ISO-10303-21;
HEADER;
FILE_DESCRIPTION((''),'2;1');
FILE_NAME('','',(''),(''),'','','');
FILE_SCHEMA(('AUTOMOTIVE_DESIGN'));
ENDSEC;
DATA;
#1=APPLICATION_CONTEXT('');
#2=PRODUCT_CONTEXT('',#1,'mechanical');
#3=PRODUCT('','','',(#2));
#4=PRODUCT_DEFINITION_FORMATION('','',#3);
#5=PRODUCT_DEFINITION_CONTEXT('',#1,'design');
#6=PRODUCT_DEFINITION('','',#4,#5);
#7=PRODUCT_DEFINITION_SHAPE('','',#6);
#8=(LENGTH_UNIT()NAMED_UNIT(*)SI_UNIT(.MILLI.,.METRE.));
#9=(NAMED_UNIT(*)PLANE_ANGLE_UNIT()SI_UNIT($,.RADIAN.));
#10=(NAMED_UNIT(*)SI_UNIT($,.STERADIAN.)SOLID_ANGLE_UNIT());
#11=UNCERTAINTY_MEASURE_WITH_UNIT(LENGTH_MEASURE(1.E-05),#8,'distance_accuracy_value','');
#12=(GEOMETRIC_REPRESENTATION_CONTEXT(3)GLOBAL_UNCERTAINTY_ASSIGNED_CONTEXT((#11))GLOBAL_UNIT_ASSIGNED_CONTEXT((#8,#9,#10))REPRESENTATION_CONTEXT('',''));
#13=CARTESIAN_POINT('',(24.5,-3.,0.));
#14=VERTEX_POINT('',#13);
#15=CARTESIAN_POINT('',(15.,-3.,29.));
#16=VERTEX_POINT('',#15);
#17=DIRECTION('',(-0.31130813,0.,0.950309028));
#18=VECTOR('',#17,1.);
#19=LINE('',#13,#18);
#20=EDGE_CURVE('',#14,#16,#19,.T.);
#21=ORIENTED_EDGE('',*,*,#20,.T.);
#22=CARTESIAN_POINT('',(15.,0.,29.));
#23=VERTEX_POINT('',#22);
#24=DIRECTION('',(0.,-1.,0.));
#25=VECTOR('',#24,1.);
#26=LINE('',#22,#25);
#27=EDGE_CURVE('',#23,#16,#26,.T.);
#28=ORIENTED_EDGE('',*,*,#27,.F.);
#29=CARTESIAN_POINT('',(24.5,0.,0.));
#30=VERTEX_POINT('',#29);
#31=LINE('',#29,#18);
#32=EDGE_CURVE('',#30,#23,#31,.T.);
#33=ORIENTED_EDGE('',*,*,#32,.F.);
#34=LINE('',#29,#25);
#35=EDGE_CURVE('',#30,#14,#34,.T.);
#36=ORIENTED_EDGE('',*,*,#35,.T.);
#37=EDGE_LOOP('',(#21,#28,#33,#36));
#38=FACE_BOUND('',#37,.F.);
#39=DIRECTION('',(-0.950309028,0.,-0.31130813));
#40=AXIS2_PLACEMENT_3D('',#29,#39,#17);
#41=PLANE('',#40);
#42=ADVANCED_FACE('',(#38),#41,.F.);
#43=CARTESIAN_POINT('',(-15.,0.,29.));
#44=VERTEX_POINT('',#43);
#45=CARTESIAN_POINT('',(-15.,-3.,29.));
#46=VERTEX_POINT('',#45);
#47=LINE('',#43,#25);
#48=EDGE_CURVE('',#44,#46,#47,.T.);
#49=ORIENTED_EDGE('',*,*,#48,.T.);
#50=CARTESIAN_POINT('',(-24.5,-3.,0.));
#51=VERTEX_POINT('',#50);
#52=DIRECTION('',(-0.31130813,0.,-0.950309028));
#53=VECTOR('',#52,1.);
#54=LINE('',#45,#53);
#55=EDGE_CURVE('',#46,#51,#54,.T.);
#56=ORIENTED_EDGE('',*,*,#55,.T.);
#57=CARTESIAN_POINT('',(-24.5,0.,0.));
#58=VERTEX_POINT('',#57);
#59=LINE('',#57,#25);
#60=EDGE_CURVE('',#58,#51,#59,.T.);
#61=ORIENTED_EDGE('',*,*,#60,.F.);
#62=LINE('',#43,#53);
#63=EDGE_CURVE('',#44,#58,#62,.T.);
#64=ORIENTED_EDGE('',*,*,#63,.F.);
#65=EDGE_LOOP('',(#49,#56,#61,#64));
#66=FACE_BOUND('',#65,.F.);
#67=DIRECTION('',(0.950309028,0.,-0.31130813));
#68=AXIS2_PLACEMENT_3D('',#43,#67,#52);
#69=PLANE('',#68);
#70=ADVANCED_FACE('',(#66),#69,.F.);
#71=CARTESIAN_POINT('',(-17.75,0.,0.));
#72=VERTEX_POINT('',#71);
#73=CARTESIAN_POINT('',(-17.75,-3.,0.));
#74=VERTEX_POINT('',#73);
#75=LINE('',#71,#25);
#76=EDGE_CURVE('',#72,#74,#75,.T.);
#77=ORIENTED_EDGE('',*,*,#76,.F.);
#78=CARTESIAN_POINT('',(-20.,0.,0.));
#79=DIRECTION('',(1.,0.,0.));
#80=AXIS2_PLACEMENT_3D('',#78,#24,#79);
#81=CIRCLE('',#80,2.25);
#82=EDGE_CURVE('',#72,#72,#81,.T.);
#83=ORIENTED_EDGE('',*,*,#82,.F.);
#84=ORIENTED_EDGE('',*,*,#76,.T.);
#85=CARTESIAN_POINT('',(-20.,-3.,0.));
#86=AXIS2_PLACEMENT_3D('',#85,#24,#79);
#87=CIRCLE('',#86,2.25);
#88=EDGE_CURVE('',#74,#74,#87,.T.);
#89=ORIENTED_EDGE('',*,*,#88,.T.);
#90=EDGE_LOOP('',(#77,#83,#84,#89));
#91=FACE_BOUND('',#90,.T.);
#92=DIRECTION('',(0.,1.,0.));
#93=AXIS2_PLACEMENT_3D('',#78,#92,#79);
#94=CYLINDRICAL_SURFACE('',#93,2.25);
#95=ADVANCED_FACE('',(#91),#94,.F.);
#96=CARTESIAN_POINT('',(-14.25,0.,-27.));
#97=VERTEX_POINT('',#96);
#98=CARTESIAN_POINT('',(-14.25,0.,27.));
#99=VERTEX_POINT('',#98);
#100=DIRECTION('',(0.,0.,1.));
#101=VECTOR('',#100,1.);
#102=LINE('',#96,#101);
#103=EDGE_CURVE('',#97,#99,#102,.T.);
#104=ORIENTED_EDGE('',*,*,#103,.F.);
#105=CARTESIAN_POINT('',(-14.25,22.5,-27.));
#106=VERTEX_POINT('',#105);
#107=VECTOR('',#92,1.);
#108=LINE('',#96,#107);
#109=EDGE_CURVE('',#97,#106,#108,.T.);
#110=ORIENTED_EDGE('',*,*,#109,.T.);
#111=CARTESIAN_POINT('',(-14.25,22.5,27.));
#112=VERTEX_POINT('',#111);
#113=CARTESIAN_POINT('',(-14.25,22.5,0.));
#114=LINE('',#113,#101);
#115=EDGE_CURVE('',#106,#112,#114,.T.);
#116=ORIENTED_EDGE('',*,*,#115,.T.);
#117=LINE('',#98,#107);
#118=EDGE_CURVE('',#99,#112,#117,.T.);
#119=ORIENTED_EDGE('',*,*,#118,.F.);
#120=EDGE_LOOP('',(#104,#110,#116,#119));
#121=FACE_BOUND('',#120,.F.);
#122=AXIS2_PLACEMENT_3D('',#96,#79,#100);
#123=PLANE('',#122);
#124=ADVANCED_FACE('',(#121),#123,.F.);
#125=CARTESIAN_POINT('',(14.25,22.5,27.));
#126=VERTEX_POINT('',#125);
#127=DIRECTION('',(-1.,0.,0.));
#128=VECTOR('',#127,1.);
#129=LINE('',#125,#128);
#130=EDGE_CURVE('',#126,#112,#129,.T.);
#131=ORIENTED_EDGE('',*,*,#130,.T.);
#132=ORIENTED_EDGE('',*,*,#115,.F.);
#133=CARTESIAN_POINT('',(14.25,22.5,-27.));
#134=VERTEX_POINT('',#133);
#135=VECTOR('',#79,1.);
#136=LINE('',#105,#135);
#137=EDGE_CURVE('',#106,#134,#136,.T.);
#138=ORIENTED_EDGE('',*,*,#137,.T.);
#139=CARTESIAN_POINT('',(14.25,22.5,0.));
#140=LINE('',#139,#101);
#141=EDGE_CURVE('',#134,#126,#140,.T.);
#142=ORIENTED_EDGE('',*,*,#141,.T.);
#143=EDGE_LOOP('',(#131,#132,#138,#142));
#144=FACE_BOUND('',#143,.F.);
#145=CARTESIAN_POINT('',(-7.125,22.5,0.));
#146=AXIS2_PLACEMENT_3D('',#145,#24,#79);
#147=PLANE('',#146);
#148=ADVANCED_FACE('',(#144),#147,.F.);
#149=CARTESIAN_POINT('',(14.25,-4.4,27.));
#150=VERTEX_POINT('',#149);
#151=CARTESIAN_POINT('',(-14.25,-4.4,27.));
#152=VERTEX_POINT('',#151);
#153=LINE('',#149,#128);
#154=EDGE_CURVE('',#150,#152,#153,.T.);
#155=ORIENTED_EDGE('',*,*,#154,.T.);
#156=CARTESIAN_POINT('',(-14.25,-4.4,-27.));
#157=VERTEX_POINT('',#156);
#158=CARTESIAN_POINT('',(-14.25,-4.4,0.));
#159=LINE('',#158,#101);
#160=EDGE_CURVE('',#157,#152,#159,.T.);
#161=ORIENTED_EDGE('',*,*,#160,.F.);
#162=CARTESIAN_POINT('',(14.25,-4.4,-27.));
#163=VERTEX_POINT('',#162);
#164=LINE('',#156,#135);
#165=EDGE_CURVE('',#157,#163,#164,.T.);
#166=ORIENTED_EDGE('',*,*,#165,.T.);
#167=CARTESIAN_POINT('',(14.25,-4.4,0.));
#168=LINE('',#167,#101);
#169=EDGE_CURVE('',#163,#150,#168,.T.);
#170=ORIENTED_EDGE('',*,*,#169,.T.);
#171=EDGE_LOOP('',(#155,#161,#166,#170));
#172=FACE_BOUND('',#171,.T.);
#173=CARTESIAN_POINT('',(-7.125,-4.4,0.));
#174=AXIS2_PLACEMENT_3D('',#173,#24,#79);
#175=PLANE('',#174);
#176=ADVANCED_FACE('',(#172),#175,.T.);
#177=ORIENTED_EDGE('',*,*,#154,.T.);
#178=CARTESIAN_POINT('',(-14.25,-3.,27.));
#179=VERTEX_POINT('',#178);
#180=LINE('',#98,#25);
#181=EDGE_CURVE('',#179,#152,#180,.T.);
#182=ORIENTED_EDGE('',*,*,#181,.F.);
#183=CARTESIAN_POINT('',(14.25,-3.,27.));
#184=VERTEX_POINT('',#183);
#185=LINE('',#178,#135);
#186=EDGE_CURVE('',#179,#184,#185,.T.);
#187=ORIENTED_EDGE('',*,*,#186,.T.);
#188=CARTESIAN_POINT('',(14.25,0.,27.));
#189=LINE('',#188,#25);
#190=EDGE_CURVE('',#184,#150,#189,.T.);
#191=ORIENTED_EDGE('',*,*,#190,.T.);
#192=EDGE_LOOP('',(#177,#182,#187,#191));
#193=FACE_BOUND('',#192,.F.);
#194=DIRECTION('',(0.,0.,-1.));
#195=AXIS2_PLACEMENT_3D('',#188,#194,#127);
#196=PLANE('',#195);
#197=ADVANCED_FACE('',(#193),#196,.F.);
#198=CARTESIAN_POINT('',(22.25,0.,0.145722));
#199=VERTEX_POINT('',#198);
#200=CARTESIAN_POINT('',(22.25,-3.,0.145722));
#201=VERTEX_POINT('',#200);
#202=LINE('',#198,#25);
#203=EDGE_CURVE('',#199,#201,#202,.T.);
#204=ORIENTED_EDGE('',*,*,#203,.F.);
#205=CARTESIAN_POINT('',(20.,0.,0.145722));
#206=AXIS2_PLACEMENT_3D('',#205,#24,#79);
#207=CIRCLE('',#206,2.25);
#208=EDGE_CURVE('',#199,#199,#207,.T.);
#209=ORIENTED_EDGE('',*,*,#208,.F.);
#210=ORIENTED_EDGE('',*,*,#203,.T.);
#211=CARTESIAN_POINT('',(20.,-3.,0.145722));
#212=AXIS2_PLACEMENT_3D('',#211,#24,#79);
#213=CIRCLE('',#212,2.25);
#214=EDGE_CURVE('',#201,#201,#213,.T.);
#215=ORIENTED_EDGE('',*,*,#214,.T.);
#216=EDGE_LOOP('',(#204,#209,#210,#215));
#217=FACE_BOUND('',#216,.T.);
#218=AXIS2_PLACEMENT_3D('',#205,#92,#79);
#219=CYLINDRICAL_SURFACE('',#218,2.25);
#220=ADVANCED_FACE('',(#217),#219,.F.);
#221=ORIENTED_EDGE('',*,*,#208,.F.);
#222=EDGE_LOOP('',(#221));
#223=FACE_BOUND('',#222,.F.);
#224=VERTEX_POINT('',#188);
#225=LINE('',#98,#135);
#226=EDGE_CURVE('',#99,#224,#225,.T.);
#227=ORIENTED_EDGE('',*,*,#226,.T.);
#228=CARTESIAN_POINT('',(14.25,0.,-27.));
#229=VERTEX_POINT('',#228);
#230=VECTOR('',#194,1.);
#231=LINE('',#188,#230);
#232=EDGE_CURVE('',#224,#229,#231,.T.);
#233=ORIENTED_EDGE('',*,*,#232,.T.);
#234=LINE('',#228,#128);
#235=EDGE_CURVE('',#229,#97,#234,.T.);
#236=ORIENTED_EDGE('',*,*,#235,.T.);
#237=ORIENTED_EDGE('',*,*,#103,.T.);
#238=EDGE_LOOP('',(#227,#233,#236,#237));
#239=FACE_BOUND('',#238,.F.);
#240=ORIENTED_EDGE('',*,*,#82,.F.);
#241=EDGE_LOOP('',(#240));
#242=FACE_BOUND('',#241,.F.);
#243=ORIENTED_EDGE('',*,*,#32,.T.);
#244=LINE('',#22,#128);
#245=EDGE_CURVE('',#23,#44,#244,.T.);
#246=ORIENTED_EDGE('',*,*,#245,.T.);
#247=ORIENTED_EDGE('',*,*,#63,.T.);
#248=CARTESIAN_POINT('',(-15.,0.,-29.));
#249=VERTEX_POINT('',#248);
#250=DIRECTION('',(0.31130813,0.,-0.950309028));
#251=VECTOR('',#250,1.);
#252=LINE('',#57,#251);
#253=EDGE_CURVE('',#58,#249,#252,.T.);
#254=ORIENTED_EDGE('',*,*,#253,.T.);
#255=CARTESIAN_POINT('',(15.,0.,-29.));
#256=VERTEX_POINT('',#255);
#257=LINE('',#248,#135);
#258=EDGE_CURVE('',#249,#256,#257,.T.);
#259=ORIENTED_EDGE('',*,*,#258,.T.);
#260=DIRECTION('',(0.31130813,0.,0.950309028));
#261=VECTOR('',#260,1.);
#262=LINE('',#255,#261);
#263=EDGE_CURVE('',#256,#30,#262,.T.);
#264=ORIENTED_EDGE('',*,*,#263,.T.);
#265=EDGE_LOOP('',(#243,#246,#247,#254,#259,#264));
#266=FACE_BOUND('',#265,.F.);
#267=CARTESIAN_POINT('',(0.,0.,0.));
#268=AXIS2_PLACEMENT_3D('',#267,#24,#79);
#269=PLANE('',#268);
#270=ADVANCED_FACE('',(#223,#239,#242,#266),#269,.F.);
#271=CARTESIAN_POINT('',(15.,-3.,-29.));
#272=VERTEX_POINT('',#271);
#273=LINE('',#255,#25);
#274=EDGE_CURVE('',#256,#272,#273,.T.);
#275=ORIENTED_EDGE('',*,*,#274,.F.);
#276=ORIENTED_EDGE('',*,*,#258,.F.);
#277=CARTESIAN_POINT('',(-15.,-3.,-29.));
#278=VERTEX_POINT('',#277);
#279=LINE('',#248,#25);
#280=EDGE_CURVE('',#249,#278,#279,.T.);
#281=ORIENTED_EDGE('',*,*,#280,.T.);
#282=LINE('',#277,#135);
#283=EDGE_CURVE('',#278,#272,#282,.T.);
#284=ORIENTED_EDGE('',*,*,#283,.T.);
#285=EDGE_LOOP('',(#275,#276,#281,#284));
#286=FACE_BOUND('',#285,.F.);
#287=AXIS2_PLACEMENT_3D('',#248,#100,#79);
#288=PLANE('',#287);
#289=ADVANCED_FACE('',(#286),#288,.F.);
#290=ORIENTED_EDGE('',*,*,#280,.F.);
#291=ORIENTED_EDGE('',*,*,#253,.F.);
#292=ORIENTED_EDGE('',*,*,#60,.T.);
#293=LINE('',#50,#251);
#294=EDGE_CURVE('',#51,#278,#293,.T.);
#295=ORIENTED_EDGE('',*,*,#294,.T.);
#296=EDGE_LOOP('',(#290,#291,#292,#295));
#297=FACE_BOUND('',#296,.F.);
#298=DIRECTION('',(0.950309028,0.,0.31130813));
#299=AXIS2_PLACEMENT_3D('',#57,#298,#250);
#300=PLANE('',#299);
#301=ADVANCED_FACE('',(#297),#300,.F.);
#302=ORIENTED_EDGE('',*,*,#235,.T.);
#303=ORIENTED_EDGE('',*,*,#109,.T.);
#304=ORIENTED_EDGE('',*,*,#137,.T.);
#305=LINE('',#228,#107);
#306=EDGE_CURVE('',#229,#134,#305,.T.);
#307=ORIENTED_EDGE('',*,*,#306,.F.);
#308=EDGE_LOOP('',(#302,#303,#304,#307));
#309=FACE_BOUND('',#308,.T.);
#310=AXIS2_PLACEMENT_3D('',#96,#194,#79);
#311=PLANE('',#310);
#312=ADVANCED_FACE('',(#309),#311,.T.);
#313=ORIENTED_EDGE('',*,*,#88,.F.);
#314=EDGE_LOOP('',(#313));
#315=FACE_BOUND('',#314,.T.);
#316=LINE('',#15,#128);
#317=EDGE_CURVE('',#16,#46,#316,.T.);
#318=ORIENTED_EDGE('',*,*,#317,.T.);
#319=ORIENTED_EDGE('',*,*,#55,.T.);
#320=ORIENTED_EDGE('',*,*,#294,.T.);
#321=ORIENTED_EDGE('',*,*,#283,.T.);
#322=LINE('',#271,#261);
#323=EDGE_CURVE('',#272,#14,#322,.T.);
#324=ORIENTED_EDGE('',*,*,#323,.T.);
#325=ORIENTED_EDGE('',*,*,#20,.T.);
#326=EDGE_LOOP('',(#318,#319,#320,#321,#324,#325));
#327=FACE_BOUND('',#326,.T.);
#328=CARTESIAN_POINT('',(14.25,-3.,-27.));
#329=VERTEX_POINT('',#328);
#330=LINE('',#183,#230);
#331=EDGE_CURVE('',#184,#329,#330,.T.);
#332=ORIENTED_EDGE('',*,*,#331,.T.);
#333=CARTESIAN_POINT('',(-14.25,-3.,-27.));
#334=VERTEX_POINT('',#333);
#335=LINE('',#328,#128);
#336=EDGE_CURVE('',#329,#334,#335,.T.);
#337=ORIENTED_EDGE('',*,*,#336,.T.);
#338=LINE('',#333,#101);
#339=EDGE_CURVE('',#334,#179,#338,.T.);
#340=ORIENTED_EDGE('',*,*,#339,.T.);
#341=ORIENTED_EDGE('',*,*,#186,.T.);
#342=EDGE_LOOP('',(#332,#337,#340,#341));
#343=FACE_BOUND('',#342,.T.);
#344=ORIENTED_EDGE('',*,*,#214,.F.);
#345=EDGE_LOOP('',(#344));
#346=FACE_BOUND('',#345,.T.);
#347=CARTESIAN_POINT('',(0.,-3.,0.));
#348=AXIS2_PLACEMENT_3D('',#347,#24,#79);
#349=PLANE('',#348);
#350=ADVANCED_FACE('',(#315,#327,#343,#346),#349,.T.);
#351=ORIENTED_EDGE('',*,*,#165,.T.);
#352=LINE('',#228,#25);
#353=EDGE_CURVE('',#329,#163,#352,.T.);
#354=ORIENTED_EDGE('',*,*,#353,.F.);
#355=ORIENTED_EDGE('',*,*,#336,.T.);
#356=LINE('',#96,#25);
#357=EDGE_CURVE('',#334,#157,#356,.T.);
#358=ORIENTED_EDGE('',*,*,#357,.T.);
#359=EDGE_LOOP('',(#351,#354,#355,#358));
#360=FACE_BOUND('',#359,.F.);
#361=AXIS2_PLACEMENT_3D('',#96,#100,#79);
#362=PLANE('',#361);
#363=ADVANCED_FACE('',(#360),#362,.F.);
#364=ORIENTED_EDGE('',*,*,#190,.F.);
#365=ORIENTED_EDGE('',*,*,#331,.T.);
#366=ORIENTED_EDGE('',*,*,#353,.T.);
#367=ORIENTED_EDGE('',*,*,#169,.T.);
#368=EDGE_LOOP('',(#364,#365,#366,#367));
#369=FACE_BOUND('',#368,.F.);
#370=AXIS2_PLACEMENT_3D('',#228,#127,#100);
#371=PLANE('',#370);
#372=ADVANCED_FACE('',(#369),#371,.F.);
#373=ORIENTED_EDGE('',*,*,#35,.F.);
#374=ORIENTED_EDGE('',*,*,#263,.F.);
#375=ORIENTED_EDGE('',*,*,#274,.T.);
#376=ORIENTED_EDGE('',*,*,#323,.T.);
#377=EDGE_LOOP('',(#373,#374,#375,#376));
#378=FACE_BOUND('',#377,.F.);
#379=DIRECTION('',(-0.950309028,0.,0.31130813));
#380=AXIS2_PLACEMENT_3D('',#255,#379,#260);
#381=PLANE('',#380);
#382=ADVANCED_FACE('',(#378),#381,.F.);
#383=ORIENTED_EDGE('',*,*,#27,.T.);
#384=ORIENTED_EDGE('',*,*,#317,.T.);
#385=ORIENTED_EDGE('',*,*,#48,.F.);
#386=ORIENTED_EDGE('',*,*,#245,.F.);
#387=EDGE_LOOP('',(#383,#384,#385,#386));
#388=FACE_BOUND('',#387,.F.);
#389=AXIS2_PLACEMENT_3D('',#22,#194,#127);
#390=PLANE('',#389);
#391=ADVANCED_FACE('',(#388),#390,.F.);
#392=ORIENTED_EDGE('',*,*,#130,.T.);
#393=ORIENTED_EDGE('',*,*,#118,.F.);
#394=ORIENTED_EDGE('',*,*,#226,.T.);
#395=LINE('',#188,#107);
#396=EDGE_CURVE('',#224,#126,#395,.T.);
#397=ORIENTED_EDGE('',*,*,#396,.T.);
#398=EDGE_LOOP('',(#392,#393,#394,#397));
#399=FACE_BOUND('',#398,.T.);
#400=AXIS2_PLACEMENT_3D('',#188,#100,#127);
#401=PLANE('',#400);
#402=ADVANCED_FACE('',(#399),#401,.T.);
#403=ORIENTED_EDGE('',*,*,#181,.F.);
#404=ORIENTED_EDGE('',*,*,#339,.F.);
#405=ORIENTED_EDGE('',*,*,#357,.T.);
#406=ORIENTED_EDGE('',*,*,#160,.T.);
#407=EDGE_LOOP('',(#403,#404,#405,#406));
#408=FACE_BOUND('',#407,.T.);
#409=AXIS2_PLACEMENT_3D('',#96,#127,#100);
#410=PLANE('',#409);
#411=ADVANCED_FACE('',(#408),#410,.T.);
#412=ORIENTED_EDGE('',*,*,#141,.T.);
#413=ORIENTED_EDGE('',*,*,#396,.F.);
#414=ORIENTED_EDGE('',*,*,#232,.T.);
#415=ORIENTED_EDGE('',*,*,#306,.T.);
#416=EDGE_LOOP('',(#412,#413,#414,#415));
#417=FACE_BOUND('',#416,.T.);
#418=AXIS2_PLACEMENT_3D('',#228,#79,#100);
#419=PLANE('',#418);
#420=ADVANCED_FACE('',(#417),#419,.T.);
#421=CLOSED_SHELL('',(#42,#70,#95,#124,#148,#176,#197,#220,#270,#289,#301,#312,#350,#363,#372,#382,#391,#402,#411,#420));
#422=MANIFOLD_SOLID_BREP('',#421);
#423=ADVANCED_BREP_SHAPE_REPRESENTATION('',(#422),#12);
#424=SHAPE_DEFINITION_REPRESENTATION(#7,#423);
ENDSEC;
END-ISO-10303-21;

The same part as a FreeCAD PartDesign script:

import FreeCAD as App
import Part
import Sketcher

V = App.Vector

doc = App.newDocument("Part")
body = doc.addObject("PartDesign::Body", "Body")

sketch1 = body.newObject("Sketcher::SketchObject", "Sketch")
sketch1.AttachmentSupport = (doc.getObject("XZ_Plane"), [""])
sketch1.MapMode = "FlatFace"
sketch1.addGeometry([
    Part.LineSegment(V(15, 29, 0), V(-15, 29, 0)),
    Part.LineSegment(V(-15, 29, 0), V(-24.5, 0, 0)),
    Part.LineSegment(V(-24.5, 0, 0), V(-15, -29, 0)),
    Part.LineSegment(V(-15, -29, 0), V(15, -29, 0)),
    Part.LineSegment(V(15, -29, 0), V(24.5, 0, 0)),
    Part.LineSegment(V(24.5, 0, 0), V(15, 29, 0)),
    Part.Circle(V(-20, 0, 0), V(0, 0, 1), 2.2),
    Part.LineSegment(V(-14.2, -27, 0), V(-14.2, 27, 0)),
    Part.LineSegment(V(-14.2, 27, 0), V(14.2, 27, 0)),
    Part.LineSegment(V(14.2, 27, 0), V(14.2, -27, 0)),
    Part.LineSegment(V(14.2, -27, 0), V(-14.2, -27, 0)),
    Part.Circle(V(20, 0.1, 0), V(0, 0, 1), 2.2),
], False)
sketch1.addConstraint([
    Sketcher.Constraint("Coincident", 0, 2, 1, 1),
    Sketcher.Constraint("Coincident", 1, 2, 2, 1),
    Sketcher.Constraint("Coincident", 2, 2, 3, 1),
    Sketcher.Constraint("Coincident", 3, 2, 4, 1),
    Sketcher.Constraint("Coincident", 4, 2, 5, 1),
    Sketcher.Constraint("Coincident", 5, 2, 0, 1),
    Sketcher.Constraint("Coincident", 7, 2, 8, 1),
    Sketcher.Constraint("Coincident", 8, 2, 9, 1),
    Sketcher.Constraint("Coincident", 9, 2, 10, 1),
    Sketcher.Constraint("Coincident", 10, 2, 7, 1),
    Sketcher.Constraint("Horizontal", 0),
    Sketcher.Constraint("Horizontal", 3),
    Sketcher.Constraint("Vertical", 7),
    Sketcher.Constraint("Horizontal", 8),
    Sketcher.Constraint("Vertical", 9),
    Sketcher.Constraint("Horizontal", 10),
    Sketcher.Constraint("Equal", 6, 11),
    Sketcher.Constraint("Symmetric", 0, 2, 3, 2, -1, 1),
    Sketcher.Constraint("Symmetric", 1, 2, 4, 2, -1, 1),
    Sketcher.Constraint("Symmetric", 7, 2, 9, 2, -1, 1),
    Sketcher.Constraint("PointOnObject", 6, 3, -1),
    Sketcher.Constraint("PointOnObject", 1, 2, -1),
    Sketcher.Constraint("Parallel", 2, 5),
    Sketcher.Constraint("Vertical", 0, 2, 2, 2),
    Sketcher.Constraint("Diameter", 6, 4.5),
    Sketcher.Constraint("DistanceX", 0, 2, 0, 1, 30.0),
    Sketcher.Constraint("DistanceY", 7, 1, 7, 2, 54.0),
    Sketcher.Constraint("DistanceX", 8, 1, 8, 2, 28.5),
    Sketcher.Constraint("DistanceX", 6, 3, -1, 1, 20.0),
    Sketcher.Constraint("DistanceX", -1, 1, 11, 3, 20.0),
    Sketcher.Constraint("DistanceY", -1, 1, 0, 2, 29.0),
    Sketcher.Constraint("DistanceX", 1, 2, 4, 2, 49.0),
    Sketcher.Constraint("DistanceY", -1, 1, 11, 3, 0.145722),
])
pad1 = body.newObject("PartDesign::Pad", "Pad")
pad1.Profile = sketch1
pad1.Length = 3

sketch2 = body.newObject("Sketcher::SketchObject", "Sketch001")
sketch2.AttachmentSupport = (doc.getObject("XZ_Plane"), [""])
sketch2.MapMode = "FlatFace"
sketch2.addGeometry([
    Part.LineSegment(V(-14, 27, 0), V(-14, -27, 0)),
    Part.LineSegment(V(-14, -27, 0), V(14, -27, 0)),
    Part.LineSegment(V(14, -27, 0), V(14, 27, 0)),
    Part.LineSegment(V(14, 27, 0), V(-14, 27, 0)),
], False)
sketch2.addConstraint([
    Sketcher.Constraint("Coincident", 0, 2, 1, 1),
    Sketcher.Constraint("Coincident", 1, 2, 2, 1),
    Sketcher.Constraint("Coincident", 2, 2, 3, 1),
    Sketcher.Constraint("Coincident", 3, 2, 0, 1),
    Sketcher.Constraint("Vertical", 0),
    Sketcher.Constraint("Horizontal", 1),
    Sketcher.Constraint("Vertical", 2),
    Sketcher.Constraint("Horizontal", 3),
    Sketcher.Constraint("Symmetric", 0, 2, 2, 2, -1, 1),
    Sketcher.Constraint("DistanceY", 0, 2, 0, 1, 54.0),
    Sketcher.Constraint("DistanceX", 1, 1, 1, 2, 28.5),
])
pad2 = body.newObject("PartDesign::Pad", "Pad001")
pad2.Profile = sketch2
pad2.Type = "TwoLengths"
pad2.Length = 22.5
pad2.Length2 = 4.4
pad2.Reversed = True

doc.recompute()
